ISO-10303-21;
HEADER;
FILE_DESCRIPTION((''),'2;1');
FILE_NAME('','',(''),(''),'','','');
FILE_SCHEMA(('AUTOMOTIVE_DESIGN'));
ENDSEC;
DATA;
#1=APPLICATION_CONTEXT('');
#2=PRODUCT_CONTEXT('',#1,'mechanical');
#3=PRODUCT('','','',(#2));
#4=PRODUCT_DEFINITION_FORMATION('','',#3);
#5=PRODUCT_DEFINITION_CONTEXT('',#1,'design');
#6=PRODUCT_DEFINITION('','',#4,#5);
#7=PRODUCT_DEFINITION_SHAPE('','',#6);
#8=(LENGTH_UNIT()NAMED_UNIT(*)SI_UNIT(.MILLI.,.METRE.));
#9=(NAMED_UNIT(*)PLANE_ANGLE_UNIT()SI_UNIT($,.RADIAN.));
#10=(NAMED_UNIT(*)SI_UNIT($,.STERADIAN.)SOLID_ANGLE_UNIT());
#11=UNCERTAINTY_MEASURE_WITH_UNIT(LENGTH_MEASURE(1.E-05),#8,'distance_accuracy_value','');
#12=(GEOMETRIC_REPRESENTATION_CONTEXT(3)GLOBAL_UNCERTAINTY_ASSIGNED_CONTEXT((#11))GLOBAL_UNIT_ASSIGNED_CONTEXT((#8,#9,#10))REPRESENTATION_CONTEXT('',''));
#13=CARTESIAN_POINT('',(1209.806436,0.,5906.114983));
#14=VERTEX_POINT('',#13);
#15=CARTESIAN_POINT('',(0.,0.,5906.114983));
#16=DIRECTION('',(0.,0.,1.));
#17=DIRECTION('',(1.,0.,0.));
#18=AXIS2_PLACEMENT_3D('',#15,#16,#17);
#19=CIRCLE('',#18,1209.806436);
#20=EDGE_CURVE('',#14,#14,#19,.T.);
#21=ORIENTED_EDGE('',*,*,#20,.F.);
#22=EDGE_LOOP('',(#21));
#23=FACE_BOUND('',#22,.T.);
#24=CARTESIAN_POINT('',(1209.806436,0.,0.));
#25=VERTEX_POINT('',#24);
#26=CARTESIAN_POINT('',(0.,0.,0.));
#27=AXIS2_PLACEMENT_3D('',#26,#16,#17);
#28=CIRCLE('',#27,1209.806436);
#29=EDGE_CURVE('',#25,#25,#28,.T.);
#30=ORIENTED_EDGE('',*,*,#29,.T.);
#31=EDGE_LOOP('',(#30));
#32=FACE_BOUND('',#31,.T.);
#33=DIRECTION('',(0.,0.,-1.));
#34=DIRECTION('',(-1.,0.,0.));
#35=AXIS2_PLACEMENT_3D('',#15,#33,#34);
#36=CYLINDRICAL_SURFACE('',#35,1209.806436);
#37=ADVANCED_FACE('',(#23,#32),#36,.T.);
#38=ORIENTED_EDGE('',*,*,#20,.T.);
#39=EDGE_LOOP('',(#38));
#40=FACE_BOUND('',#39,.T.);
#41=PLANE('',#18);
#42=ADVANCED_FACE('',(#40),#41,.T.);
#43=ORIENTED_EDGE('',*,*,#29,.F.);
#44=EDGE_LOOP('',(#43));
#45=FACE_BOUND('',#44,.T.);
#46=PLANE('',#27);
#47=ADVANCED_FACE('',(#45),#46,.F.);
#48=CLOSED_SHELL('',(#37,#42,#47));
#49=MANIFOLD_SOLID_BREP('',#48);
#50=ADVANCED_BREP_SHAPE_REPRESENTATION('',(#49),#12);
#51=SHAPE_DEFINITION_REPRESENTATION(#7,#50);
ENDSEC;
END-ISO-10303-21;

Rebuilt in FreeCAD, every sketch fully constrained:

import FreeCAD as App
import Part
import Sketcher

V = App.Vector

doc = App.newDocument("Part")
body = doc.addObject("PartDesign::Body", "Body")

# Sketch on XY plane
sketch1 = body.newObject("Sketcher::SketchObject", "Sketch")
sketch1.AttachmentSupport = (doc.getObject("XY_Plane"), [""])
sketch1.MapMode = "FlatFace"
sketch1.addGeometry(Part.Circle(V(0, 0, 0), V(0, 0, 1), 1210), False)
sketch1.addConstraint([
    Sketcher.Constraint("Coincident", 0, 3, -1, 1),
    Sketcher.Constraint("Diameter", 0, 2419.612872),
])
pad1 = body.newObject("PartDesign::Pad", "Pad")
pad1.Profile = sketch1
pad1.Length = 5906.114983

doc.recompute()
